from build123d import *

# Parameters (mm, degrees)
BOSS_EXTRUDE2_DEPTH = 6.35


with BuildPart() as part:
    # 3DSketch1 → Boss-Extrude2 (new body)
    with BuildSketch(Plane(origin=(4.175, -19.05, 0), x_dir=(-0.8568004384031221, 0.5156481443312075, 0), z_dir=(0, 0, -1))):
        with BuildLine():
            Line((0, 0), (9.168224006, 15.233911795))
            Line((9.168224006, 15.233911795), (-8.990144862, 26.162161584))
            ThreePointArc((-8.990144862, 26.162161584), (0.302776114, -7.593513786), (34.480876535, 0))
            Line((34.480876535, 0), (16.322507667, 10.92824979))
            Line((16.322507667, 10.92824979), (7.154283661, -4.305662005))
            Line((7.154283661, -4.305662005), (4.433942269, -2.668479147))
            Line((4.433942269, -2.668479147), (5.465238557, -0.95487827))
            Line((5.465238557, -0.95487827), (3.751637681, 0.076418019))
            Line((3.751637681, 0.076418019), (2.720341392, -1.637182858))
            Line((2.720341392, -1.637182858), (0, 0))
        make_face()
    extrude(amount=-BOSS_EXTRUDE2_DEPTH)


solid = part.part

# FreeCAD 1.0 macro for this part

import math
import FreeCAD as App
import Part
import Sketcher

V = App.Vector
Q = App.Units.Quantity

doc = App.newDocument("Part")
body = doc.addObject("PartDesign::Body", "Body")

sketch1 = body.newObject("Sketcher::SketchObject", "Sketch")
sketch1.AttachmentSupport = (doc.getObject("XY_Plane"), [""])
sketch1.MapMode = "FlatFace"
sketch1.addGeometry([
    Part.LineSegment(V(4.2, -19.1, 0), V(4.2, -1.3, 0)),
    Part.LineSegment(V(4.2, -1.3, 0), V(25.4, -1.3, 0)),
    Part.ArcOfCircle(Part.Circle(V(0, 0, 0), V(0, 0, 1), 25.4), math.radians(-177), math.radians(-3)),
    Part.LineSegment(V(-25.4, -1.3, 0), V(-4.2, -1.3, 0)),
    Part.LineSegment(V(-4.2, -1.3, 0), V(-4.2, -19.1, 0)),
    Part.LineSegment(V(-4.2, -19.1, 0), V(-1, -19.1, 0)),
    Part.LineSegment(V(-1, -19.1, 0), V(-1, -17.1, 0)),
    Part.LineSegment(V(-1, -17.1, 0), V(1, -17.1, 0)),
    Part.LineSegment(V(1, -17.1, 0), V(1, -19.1, 0)),
    Part.LineSegment(V(1, -19.1, 0), V(4.2, -19.1, 0)),
], False)
sketch1.addConstraint([
    Sketcher.Constraint("Coincident", 0, 2, 1, 1),
    Sketcher.Constraint("Coincident", 1, 2, 2, 2),
    Sketcher.Constraint("Coincident", 2, 1, 3, 1),
    Sketcher.Constraint("Coincident", 3, 2, 4, 1),
    Sketcher.Constraint("Coincident", 4, 2, 5, 1),
    Sketcher.Constraint("Coincident", 5, 2, 6, 1),
    Sketcher.Constraint("Coincident", 6, 2, 7, 1),
    Sketcher.Constraint("Coincident", 7, 2, 8, 1),
    Sketcher.Constraint("Coincident", 8, 2, 9, 1),
    Sketcher.Constraint("Coincident", 9, 2, 0, 1),
    Sketcher.Constraint("Vertical", 0),
    Sketcher.Constraint("Horizontal", 1),
    Sketcher.Constraint("Horizontal", 3),
    Sketcher.Constraint("Vertical", 4),
    Sketcher.Constraint("Horizontal", 5),
    Sketcher.Constraint("Vertical", 6),
    Sketcher.Constraint("Horizontal", 7),
    Sketcher.Constraint("Vertical", 8),
    Sketcher.Constraint("Horizontal", 9),
    Sketcher.Constraint("Coincident", 2, 3, -1, 1),
    Sketcher.Constraint("Symmetric", 0, 2, 3, 2, -2),
    Sketcher.Constraint("Symmetric", 5, 2, 8, 2, -2),
    Sketcher.Constraint("Equal", 7, 6),
    Sketcher.Constraint("Radius", 2, Q("1 in")),
    Sketcher.Constraint("DistanceY", 0, 1, 0, 2, Q("0.7 in")),
    Sketcher.Constraint("DistanceX", 5, 1, 5, 2, Q("0.125 in")),
    Sketcher.Constraint("DistanceY", 0, 2, -1, 1, Q("0.05 in")),
    Sketcher.Constraint("DistanceX", 7, 1, 7, 2, 2.0),
])
pad1 = body.newObject("PartDesign::Pad", "Pad")
pad1.Profile = sketch1
pad1.Length = Q("0.25 in")

doc.recompute()
